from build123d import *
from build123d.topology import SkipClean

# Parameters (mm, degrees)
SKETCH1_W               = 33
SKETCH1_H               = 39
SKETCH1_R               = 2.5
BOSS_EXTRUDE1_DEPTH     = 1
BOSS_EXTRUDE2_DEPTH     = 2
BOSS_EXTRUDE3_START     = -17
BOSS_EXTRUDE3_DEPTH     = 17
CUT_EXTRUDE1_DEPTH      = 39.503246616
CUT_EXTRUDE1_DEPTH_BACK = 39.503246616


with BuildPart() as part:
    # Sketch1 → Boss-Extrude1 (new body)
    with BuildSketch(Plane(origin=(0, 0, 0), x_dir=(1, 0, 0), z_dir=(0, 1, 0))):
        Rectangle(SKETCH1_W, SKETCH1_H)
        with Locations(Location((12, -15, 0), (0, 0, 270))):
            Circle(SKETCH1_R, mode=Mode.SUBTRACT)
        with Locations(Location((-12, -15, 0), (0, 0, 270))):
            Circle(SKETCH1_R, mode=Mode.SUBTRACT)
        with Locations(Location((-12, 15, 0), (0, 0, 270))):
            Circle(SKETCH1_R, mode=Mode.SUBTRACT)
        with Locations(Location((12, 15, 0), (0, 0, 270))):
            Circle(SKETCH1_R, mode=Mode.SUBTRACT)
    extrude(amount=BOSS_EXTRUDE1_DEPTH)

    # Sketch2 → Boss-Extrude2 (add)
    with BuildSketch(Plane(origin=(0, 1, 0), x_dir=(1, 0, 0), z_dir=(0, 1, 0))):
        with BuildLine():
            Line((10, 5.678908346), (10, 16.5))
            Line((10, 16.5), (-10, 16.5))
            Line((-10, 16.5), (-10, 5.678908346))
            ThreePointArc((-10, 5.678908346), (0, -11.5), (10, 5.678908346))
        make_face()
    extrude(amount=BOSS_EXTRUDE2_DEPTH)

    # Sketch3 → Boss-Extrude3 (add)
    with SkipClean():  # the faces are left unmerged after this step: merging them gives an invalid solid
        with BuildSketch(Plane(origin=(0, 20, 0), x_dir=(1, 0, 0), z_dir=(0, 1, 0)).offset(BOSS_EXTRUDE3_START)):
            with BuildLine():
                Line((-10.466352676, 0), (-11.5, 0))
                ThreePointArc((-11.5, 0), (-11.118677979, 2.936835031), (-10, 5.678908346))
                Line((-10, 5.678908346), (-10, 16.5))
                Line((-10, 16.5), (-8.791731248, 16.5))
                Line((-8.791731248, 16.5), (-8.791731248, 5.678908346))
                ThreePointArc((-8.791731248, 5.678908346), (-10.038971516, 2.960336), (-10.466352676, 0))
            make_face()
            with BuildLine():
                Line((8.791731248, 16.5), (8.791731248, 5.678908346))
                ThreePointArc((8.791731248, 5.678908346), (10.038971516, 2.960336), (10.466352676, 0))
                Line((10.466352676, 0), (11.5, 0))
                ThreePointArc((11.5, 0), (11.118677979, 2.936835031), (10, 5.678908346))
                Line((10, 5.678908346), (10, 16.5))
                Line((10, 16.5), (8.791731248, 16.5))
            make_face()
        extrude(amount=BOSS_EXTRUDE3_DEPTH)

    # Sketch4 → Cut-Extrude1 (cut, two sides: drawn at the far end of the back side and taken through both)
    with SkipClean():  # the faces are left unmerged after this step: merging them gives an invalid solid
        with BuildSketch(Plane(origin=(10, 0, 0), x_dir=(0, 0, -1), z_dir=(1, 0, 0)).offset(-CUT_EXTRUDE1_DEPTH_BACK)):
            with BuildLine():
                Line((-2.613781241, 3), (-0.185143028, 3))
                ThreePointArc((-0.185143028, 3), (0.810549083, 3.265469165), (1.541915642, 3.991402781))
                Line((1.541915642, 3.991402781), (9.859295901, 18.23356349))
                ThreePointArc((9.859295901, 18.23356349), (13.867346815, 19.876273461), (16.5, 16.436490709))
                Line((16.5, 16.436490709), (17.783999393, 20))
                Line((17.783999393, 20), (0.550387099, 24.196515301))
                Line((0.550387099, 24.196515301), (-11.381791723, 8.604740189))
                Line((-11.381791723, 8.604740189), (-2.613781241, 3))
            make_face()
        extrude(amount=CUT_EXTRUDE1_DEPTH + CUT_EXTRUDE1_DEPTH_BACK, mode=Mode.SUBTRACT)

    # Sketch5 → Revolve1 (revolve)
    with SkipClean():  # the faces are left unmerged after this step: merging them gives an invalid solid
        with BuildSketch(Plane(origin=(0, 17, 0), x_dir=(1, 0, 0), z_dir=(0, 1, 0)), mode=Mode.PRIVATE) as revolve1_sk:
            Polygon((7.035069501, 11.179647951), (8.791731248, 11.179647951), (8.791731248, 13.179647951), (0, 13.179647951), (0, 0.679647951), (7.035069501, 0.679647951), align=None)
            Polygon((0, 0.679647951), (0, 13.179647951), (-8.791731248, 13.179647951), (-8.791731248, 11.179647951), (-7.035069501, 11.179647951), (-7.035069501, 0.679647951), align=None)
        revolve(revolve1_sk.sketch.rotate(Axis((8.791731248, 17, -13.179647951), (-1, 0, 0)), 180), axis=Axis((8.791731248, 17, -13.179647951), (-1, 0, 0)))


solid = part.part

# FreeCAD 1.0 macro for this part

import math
import FreeCAD as App
import Part
import Sketcher
from FreeCAD import Vector


def add_polygon(sketch, points):
    """Adds a closed chain of lines whose ends are joined by coincident constraints."""
    first, n = sketch.GeometryCount, len(points)
    for a, b in zip(points, points[1:] + points[:1]):
        sketch.addGeometry(Part.LineSegment(App.Vector(*a, 0), App.Vector(*b, 0)), False)
    for i in range(n):
        sketch.addConstraint(Sketcher.Constraint("Coincident", first + i, 2, first + (i + 1) % n, 1))

doc = App.newDocument("Part")
params = doc.addObject("Spreadsheet::Sheet", "Params")
for row, (alias, value) in enumerate([
    ("sketch1_diameter", "5 mm"),
    ("sketch1_width", "33 mm"),
    ("sketch1_height", "39 mm"),
    ("pad1_length", "1 mm"),
    ("sketch2_radius", "11.5 mm"),
    ("sketch2_width", "20 mm"),
    ("pad2_length", "2 mm"),
    ("sketch3_radius", "11.5 mm"),
    ("pad3_length", "17 mm"),
    ("sketch4_radius", "2 mm"),
    ("sketch5_height", "2 mm"),
    ("sketch5_height2", "12.5 mm"),
    ("revolution_angle", "360 deg"),
], start=1):
    params.set(f"A{row}", alias)
    params.set(f"B{row}", "=" + value)
    params.setAlias(f"B{row}", alias)

body = doc.addObject("PartDesign::Body", "Body")

sketch1 = body.newObject("Sketcher::SketchObject", "Sketch")
sketch1.AttachmentSupport = (doc.getObject("XZ_Plane"), [""])
sketch1.MapMode = "FlatFace"
add_polygon(sketch1, [(-16.5, -19.5), (-16.5, 19.5), (16.5, 19.5), (16.5, -19.5)])
sketch1.addGeometry(Part.Circle(Vector(-12, 15, 0), Vector(0, 0, 1), 2.5), False)
sketch1.addGeometry(Part.Circle(Vector(12, 15, 0), Vector(0, 0, 1), 2.5), False)
sketch1.addGeometry(Part.Circle(Vector(-12, -15, 0), Vector(0, 0, 1), 2.5), False)
sketch1.addGeometry(Part.Circle(Vector(12, -15, 0), Vector(0, 0, 1), 2.5), False)
sketch1.addConstraint([
    Sketcher.Constraint("Vertical", 0),
    Sketcher.Constraint("Horizontal", 1),
    Sketcher.Constraint("Vertical", 2),
    Sketcher.Constraint("Horizontal", 3),
    Sketcher.Constraint("Equal", 4, 5),
    Sketcher.Constraint("Equal", 5, 6),
    Sketcher.Constraint("Equal", 6, 7),
    Sketcher.Constraint("Symmetric", 5, 3, 6, 3, -1, 1),
    Sketcher.Constraint("Symmetric", 4, 3, 7, 3, -1, 1),
    Sketcher.Constraint("Symmetric", 0, 2, 2, 2, -1, 1),
    Sketcher.Constraint("Symmetric", 4, 3, 5, 3, -2),
    Sketcher.Constraint("Diameter", 4, 5.0),
    Sketcher.Constraint("DistanceX", 1, 1, 1, 2, 33.0),
    Sketcher.Constraint("DistanceY", 0, 1, 0, 2, 39.0),
    Sketcher.Constraint("DistanceX", 4, 3, -1, 1, 12.0),
    Sketcher.Constraint("DistanceY", -1, 1, 4, 3, 15.0),
])
sketch1.setExpression("Constraints[15]", "Params.sketch1_diameter")
sketch1.setExpression("Constraints[16]", "Params.sketch1_width")
sketch1.setExpression("Constraints[17]", "Params.sketch1_height")
pad1 = body.newObject("PartDesign::Pad", "Pad")
pad1.Profile = sketch1
pad1.setExpression("Length", "Params.pad1_length")
pad1.Reversed = True

sketch2 = body.newObject("Sketcher::SketchObject", "Sketch001")
sketch2.AttachmentSupport = (doc.getObject("XZ_Plane"), [""])
sketch2.MapMode = "FlatFace"
sketch2.AttachmentOffset = App.Placement(Vector(0, 0, -1), App.Rotation())
sketch2.addGeometry([
    Part.LineSegment(Vector(10, -6, 0), Vector(10, -16, 0)),
    Part.LineSegment(Vector(10, -16, 0), Vector(-10, -16, 0)),
    Part.LineSegment(Vector(-10, -16, 0), Vector(-10, -6, 0)),
    Part.ArcOfCircle(Part.Circle(Vector(0, 0, 0), Vector(0, 0, 1), 12), math.radians(-30), math.radians(210)),
], False)
sketch2.addConstraint([
    Sketcher.Constraint("Coincident", 0, 2, 1, 1),
    Sketcher.Constraint("Coincident", 1, 2, 2, 1),
    Sketcher.Constraint("Coincident", 2, 2, 3, 2),
    Sketcher.Constraint("Coincident", 3, 1, 0, 1),
    Sketcher.Constraint("Vertical", 0),
    Sketcher.Constraint("Horizontal", 1),
    Sketcher.Constraint("Vertical", 2),
    Sketcher.Constraint("Coincident", 3, 3, -1, 1),
    Sketcher.Constraint("Horizontal", 2, 2, 3, 1),
    Sketcher.Constraint("Radius", 3, 11.5),
    Sketcher.Constraint("DistanceX", 1, 2, 1, 1, 20.0),
    Sketcher.Constraint("DistanceY", 0, 2, -1, 1, 16.5),
])
sketch2.setExpression("Constraints[9]", "Params.sketch2_radius")
sketch2.setExpression("Constraints[10]", "Params.sketch2_width")
pad2 = body.newObject("PartDesign::Pad", "Pad001")
pad2.Profile = sketch2
pad2.setExpression("Length", "Params.pad2_length")
pad2.Reversed = True

sketch3 = body.newObject("Sketcher::SketchObject", "Sketch002")
sketch3.AttachmentSupport = (doc.getObject("XZ_Plane"), [""])
sketch3.MapMode = "FlatFace"
sketch3.AttachmentOffset = App.Placement(Vector(0, 0, -3), App.Rotation())
sketch3.addGeometry([
    Part.LineSegment(Vector(-11.5, 0, 0), Vector(-10.5, 0, 0)),
    Part.ArcOfCircle(Part.Circle(Vector(0, 0, 0), Vector(0, 0, 1), 10.5), math.radians(-180), math.radians(-147)),
    Part.LineSegment(Vector(-8.8, -5.7, 0), Vector(-8.8, -16.5, 0)),
    Part.LineSegment(Vector(-8.8, -16.5, 0), Vector(-10, -16.5, 0)),
    Part.LineSegment(Vector(-10, -16.5, 0), Vector(-10, -5.7, 0)),
    Part.ArcOfCircle(Part.Circle(Vector(0, 0, 0), Vector(0, 0, 1), 11.5), math.radians(180), math.radians(210)),
    Part.LineSegment(Vector(8.8, -16.5, 0), Vector(8.8, -5.7, 0)),
    Part.ArcOfCircle(Part.Circle(Vector(0, 0, 0), Vector(0, 0, 1), 10.5), math.radians(-33), math.radians(0)),
    Part.LineSegment(Vector(10.5, 0, 0), Vector(11.5, 0, 0)),
    Part.ArcOfCircle(Part.Circle(Vector(0, 0, 0), Vector(0, 0, 1), 11.5), math.radians(-30), math.radians(0)),
    Part.LineSegment(Vector(10, -5.7, 0), Vector(10, -16.5, 0)),
    Part.LineSegment(Vector(10, -16.5, 0), Vector(8.8, -16.5, 0)),
], False)
sketch3.addConstraint([
    Sketcher.Constraint("Coincident", 0, 2, 1, 1),
    Sketcher.Constraint("Coincident", 1, 2, 2, 1),
    Sketcher.Constraint("Coincident", 2, 2, 3, 1),
    Sketcher.Constraint("Coincident", 3, 2, 4, 1),
    Sketcher.Constraint("Coincident", 4, 2, 5, 2),
    Sketcher.Constraint("Coincident", 5, 1, 0, 1),
    Sketcher.Constraint("Coincident", 6, 2, 7, 1),
    Sketcher.Constraint("Coincident", 7, 2, 8, 1),
    Sketcher.Constraint("Coincident", 8, 2, 9, 2),
    Sketcher.Constraint("Coincident", 9, 1, 10, 1),
    Sketcher.Constraint("Coincident", 10, 2, 11, 1),
    Sketcher.Constraint("Coincident", 11, 2, 6, 1),
    Sketcher.Constraint("Horizontal", 0),
    Sketcher.Constraint("Vertical", 2),
    Sketcher.Constraint("Horizontal", 3),
    Sketcher.Constraint("Vertical", 4),
    Sketcher.Constraint("Vertical", 6),
    Sketcher.Constraint("Horizontal", 8),
    Sketcher.Constraint("Vertical", 10),
    Sketcher.Constraint("Horizontal", 11),
    Sketcher.Constraint("Coincident", 1, 3, -1, 1),
    Sketcher.Constraint("Coincident", 5, 3, -1, 1),
    Sketcher.Constraint("Coincident", 7, 3, -1, 1),
    Sketcher.Constraint("Coincident", 9, 3, -1, 1),
    Sketcher.Constraint("Equal", 1, 7),
    Sketcher.Constraint("Equal", 5, 9),
    Sketcher.Constraint("Symmetric", 3, 2, 10, 2, -2),
    Sketcher.Constraint("PointOnObject", 0, 2, -1),
    Sketcher.Constraint("PointOnObject", 7, 2, -1),
    Sketcher.Constraint("Horizontal", 1, 2, 4, 2),
    Sketcher.Constraint("Horizontal", 4, 2, 6, 2),
    Sketcher.Constraint("Radius", 5, 11.5),
    Sketcher.Constraint("DistanceX", 3, 2, -1, 1, 10.0),
    Sketcher.Constraint("DistanceY", 2, 2, -1, 1, 16.5),
    Sketcher.Constraint("Radius", 1, 10.466353),
])
sketch3.setExpression("Constraints[31]", "Params.sketch3_radius")
pad3 = body.newObject("PartDesign::Pad", "Pad002")
pad3.Profile = sketch3
pad3.setExpression("Length", "Params.pad3_length")
pad3.Reversed = True

sketch4 = body.newObject("Sketcher::SketchObject", "Sketch003")
sketch4.AttachmentSupport = (doc.getObject("YZ_Plane"), [""])
sketch4.MapMode = "FlatFace"
sketch4.AttachmentOffset = App.Placement(Vector(0, 0, 10), App.Rotation())
sketch4.addGeometry([
    Part.LineSegment(Vector(3, 2.6, 0), Vector(3, 0.2, 0)),
    Part.ArcOfCircle(Part.Circle(Vector(5, 0.2, 0), Vector(0, 0, 1), 2), math.radians(-180), math.radians(-120)),
    Part.LineSegment(Vector(4, -1.5, 0), Vector(18.2, -9.9, 0)),
    Part.ArcOfCircle(Part.Circle(Vector(16.4, -12.9, 0), Vector(0, 0, 1), 3.6), math.radians(-90), math.radians(60)),
    Part.LineSegment(Vector(16.4, -16.5, 0), Vector(20, -17.8, 0)),
    Part.LineSegment(Vector(20, -17.8, 0), Vector(24.2, -0.6, 0)),
    Part.LineSegment(Vector(24.2, -0.6, 0), Vector(8.6, 11.4, 0)),
    Part.LineSegment(Vector(8.6, 11.4, 0), Vector(3, 2.6, 0)),
], False)
sketch4.addConstraint([
    Sketcher.Constraint("Tangent", 0, 2, 1, 1),
    Sketcher.Constraint("Tangent", 1, 2, 2, 1),
    Sketcher.Constraint("Tangent", 2, 2, 3, 2),
    Sketcher.Constraint("Coincident", 3, 1, 4, 1),
    Sketcher.Constraint("Coincident", 4, 2, 5, 1),
    Sketcher.Constraint("Coincident", 5, 2, 6, 1),
    Sketcher.Constraint("Coincident", 6, 2, 7, 1),
    Sketcher.Constraint("Coincident", 7, 2, 0, 1),
    Sketcher.Constraint("Vertical", 0),
    Sketcher.Constraint("Radius", 1, 2.0),
    Sketcher.Constraint("DistanceX", -1, 1, 1, 3, 5.0),
    Sketcher.Constraint("DistanceX", -1, 1, 4, 2, 20.0),
    Sketcher.Constraint("DistanceY", 3, 1, -1, 1, 16.5),
    Sketcher.Constraint("Radius", 3, 3.563509),
    Sketcher.Constraint("DistanceY", 4, 2, -1, 1, 17.783999),
    Sketcher.Constraint("Distance", 7, 10.406302),
    Sketcher.Constraint("DistanceY", 0, 2, 0, 1, 2.428638),
    Sketcher.Constraint("DistanceX", -1, 1, 3, 3, 16.436491),
    Sketcher.Constraint("DistanceX", -1, 1, 3, 1, 16.436491),
    Sketcher.Constraint("DistanceX", -1, 1, 6, 2, 8.60474),
    Sketcher.Constraint("DistanceY", -1, 1, 6, 2, 11.381792),
    Sketcher.Constraint("DistanceX", 2, 2, 5, 2, 5.962952),
    Sketcher.Constraint("DistanceY", 2, 2, 5, 2, 9.308909),
])
sketch4.setExpression("Constraints[9]", "Params.sketch4_radius")
pocket1 = body.newObject("PartDesign::Pocket", "Pocket")
pocket1.Profile = sketch4
pocket1.Type = "ThroughAll"
pocket1.Midplane = True

sketch5 = body.newObject("Sketcher::SketchObject", "Sketch004")
sketch5.AttachmentSupport = (doc.getObject("XZ_Plane"), [""])
sketch5.MapMode = "FlatFace"
sketch5.AttachmentOffset = App.Placement(Vector(0, 0, -17), App.Rotation())
add_polygon(sketch5, [(7, -11.2), (8.8, -11.2), (8.8, -13.2), (0, -13.2), (0, -0.7), (7, -0.7)])
add_polygon(sketch5, [(0, -0.7), (0, -13.2), (-8.8, -13.2), (-8.8, -11.2), (-7, -11.2), (-7, -0.7)])
sketch5.addGeometry(Part.LineSegment(Vector(8.8, -13.2, 0), Vector(-8.8, -13.2, 0)), True)
sketch5.addConstraint([
    Sketcher.Constraint("Horizontal", 0),
    Sketcher.Constraint("Vertical", 1),
    Sketcher.Constraint("Horizontal", 2),
    Sketcher.Constraint("Vertical", 3),
    Sketcher.Constraint("Horizontal", 4),
    Sketcher.Constraint("Vertical", 5),
    Sketcher.Constraint("Vertical", 6),
    Sketcher.Constraint("Horizontal", 7),
    Sketcher.Constraint("Vertical", 8),
    Sketcher.Constraint("Horizontal", 9),
    Sketcher.Constraint("Vertical", 10),
    Sketcher.Constraint("Horizontal", 11),
    Sketcher.Constraint("Horizontal", 12),
    Sketcher.Constraint("Coincident", 6, 2, 2, 2),
    Sketcher.Constraint("Coincident", 12, 1, 1, 2),
    Sketcher.Constraint("Symmetric", 0, 2, 8, 2, -2),
    Sketcher.Constraint("Symmetric", 4, 2, 10, 2, -2),
    Sketcher.Constraint("PointOnObject", 2, 2, -2),
    Sketcher.Constraint("Vertical", 8, 2, 12, 2),
    Sketcher.Constraint("DistanceY", 1, 2, 1, 1, 2.0),
    Sketcher.Constraint("DistanceY", 3, 1, 3, 2, 12.5),
    Sketcher.Constraint("DistanceX", 0, 1, 0, 2, 1.756662),
    Sketcher.Constraint("DistanceX", 2, 2, 2, 1, 8.791731),
    Sketcher.Constraint("DistanceY", 0, 2, -1, 1, 11.179648),
])
sketch5.setExpression("Constraints[31]", "Params.sketch5_height")
sketch5.setExpression("Constraints[32]", "Params.sketch5_height2")
revolution = body.newObject("PartDesign::Revolution", "Revolution")
revolution.Profile = sketch5
revolution.ReferenceAxis = (sketch5, ["Axis0"])
revolution.setExpression("Angle", "Params.revolution_angle")

doc.recompute()
